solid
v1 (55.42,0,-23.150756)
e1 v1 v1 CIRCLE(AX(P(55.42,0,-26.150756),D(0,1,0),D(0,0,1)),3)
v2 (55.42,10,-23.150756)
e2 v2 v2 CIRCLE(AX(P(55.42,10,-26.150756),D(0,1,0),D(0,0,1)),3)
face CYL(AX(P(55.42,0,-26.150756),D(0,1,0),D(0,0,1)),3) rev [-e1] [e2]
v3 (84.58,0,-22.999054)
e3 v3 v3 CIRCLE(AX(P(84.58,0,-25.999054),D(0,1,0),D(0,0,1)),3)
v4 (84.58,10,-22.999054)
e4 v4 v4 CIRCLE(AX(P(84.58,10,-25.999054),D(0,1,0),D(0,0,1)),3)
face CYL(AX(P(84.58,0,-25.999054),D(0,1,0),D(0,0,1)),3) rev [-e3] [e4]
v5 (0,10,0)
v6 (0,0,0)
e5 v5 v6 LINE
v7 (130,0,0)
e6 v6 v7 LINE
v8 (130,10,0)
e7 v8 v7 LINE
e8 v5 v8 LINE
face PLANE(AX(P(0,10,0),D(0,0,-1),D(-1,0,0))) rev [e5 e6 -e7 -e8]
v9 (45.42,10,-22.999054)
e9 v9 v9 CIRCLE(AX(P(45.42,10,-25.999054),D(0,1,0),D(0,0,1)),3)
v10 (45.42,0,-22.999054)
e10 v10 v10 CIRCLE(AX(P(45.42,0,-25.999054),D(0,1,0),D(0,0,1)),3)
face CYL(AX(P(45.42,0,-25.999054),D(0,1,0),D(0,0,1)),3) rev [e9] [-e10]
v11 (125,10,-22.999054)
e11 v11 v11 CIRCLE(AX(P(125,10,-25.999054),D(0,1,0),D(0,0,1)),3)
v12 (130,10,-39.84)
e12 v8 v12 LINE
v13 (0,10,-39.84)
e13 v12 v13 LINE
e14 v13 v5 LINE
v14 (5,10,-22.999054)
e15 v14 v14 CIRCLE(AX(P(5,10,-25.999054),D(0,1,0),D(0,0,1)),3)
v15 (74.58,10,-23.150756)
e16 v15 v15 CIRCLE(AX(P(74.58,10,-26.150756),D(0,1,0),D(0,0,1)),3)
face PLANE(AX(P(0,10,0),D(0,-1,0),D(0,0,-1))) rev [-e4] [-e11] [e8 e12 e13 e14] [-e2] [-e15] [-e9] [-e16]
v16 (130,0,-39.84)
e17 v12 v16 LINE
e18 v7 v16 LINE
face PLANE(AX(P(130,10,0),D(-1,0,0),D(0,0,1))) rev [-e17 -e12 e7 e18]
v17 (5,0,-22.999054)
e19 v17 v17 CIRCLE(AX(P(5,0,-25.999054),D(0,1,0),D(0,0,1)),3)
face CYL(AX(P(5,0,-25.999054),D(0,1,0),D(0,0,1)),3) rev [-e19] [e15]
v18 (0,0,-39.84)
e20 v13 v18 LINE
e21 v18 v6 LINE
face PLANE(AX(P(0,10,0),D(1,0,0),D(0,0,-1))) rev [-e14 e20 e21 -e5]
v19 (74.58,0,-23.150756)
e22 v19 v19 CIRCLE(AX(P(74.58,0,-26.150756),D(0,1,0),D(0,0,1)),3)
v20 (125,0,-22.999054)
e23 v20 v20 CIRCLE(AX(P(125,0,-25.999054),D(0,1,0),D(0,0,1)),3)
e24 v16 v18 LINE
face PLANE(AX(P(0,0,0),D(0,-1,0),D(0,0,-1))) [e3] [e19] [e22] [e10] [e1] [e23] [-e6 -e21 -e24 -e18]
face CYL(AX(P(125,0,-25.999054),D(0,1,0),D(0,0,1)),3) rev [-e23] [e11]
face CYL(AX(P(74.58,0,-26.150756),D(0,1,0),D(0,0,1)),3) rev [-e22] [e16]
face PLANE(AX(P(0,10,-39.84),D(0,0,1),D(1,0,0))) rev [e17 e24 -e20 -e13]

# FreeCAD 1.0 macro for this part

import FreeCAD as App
import Part
import Sketcher

V = App.Vector
Q = App.Units.Quantity

doc = App.newDocument("Part")
params = doc.addObject("Spreadsheet::Sheet", "Params")
for row, (alias, value) in enumerate([
    ("sketch1_width", "130 mm"),
    ("sketch1_height", "39.84 mm"),
    ("pad1_length", "10 mm"),
    ("sketch2_diameter", "6 mm"),
], start=1):
    params.set(f"A{row}", alias)
    params.set(f"B{row}", "=" + value)
    params.setAlias(f"B{row}", alias)

body = doc.addObject("PartDesign::Body", "Body")

sketch1 = body.newObject("Sketcher::SketchObject", "Sketch")
sketch1.AttachmentSupport = (doc.getObject("XZ_Plane"), [""])
sketch1.MapMode = "FlatFace"
sketch1.addGeometry([
    Part.LineSegment(V(0, -39.84, 0), V(0, 0, 0)),
    Part.LineSegment(V(0, 0, 0), V(130, 0, 0)),
    Part.LineSegment(V(130, 0, 0), V(130, -39.84, 0)),
    Part.LineSegment(V(130, -39.84, 0), V(0, -39.84, 0)),
], False)
sketch1.addConstraint([
    Sketcher.Constraint("Coincident", 0, 2, 1, 1),
    Sketcher.Constraint("Coincident", 1, 2, 2, 1),
    Sketcher.Constraint("Coincident", 2, 2, 3, 1),
    Sketcher.Constraint("Coincident", 3, 2, 0, 1),
    Sketcher.Constraint("Vertical", 0),
    Sketcher.Constraint("Horizontal", 1),
    Sketcher.Constraint("Vertical", 2),
    Sketcher.Constraint("Horizontal", 3),
    Sketcher.Constraint("Coincident", 0, 2, -1, 1),
    Sketcher.Constraint("DistanceX", 1, 1, 1, 2, Q("130 mm")),
    Sketcher.Constraint("DistanceY", 0, 1, 0, 2, Q("39.84 mm")),
])
sketch1.setExpression("Constraints[9]", "Params.sketch1_width")
sketch1.setExpression("Constraints[10]", "Params.sketch1_height")
pad1 = body.newObject("PartDesign::Pad", "Pad")
pad1.Profile = sketch1
pad1.setExpression("Length", "Params.pad1_length")
pad1.Reversed = True

sketch2 = body.newObject("Sketcher::SketchObject", "Sketch001")
sketch2.AttachmentSupport = (doc.getObject("XZ_Plane"), [""])
sketch2.MapMode = "FlatFace"
sketch2.AttachmentOffset = App.Placement(V(0, 0, -10), App.Rotation())
sketch2.addGeometry([
    Part.Circle(V(5, -25.999054, 0), V(0, 0, 1), 3),
    Part.Circle(V(45.42, -25.999054, 0), V(0, 0, 1), 3),
    Part.Circle(V(55.42, -26.150756, 0), V(0, 0, 1), 3),
    Part.Circle(V(74.58, -26.150756, 0), V(0, 0, 1), 3),
    Part.Circle(V(84.58, -25.999054, 0), V(0, 0, 1), 3),
    Part.Circle(V(125, -25.999054, 0), V(0, 0, 1), 3),
], False)
sketch2.addConstraint([
    Sketcher.Constraint("Equal", 0, 1),
    Sketcher.Constraint("Equal", 1, 2),
    Sketcher.Constraint("Equal", 2, 3),
    Sketcher.Constraint("Equal", 3, 4),
    Sketcher.Constraint("Equal", 4, 5),
    Sketcher.Constraint("Horizontal", 0, 3, 1, 3),
    Sketcher.Constraint("Horizontal", 2, 3, 3, 3),
    Sketcher.Constraint("Horizontal", 1, 3, 4, 3),
    Sketcher.Constraint("Horizontal", 4, 3, 5, 3),
    Sketcher.Constraint("Diameter", 0, Q("6 mm")),
    Sketcher.Constraint("DistanceX", -1, 1, 0, 3, Q("5 mm")),
    Sketcher.Constraint("DistanceX", -1, 1, 5, 3, Q("125 mm")),
    Sketcher.Constraint("DistanceX", 1, 3, 2, 3, Q("10 mm")),
    Sketcher.Constraint("DistanceX", 3, 3, 4, 3, Q("10 mm")),
    Sketcher.Constraint("DistanceX", -1, 1, 1, 3, Q("45.42 mm")),
    Sketcher.Constraint("DistanceX", -1, 1, 3, 3, Q("74.58 mm")),
    Sketcher.Constraint("DistanceY", 0, 3, -1, 1, Q("25.999054 mm")),
    Sketcher.Constraint("DistanceY", 2, 3, -1, 1, Q("26.150756 mm")),
])
sketch2.setExpression("Constraints[9]", "Params.sketch2_diameter")
pocket1 = body.newObject("PartDesign::Pocket", "Pocket")
pocket1.Profile = sketch2
pocket1.Type = "ThroughAll"
pocket1.Reversed = True

doc.recompute()
